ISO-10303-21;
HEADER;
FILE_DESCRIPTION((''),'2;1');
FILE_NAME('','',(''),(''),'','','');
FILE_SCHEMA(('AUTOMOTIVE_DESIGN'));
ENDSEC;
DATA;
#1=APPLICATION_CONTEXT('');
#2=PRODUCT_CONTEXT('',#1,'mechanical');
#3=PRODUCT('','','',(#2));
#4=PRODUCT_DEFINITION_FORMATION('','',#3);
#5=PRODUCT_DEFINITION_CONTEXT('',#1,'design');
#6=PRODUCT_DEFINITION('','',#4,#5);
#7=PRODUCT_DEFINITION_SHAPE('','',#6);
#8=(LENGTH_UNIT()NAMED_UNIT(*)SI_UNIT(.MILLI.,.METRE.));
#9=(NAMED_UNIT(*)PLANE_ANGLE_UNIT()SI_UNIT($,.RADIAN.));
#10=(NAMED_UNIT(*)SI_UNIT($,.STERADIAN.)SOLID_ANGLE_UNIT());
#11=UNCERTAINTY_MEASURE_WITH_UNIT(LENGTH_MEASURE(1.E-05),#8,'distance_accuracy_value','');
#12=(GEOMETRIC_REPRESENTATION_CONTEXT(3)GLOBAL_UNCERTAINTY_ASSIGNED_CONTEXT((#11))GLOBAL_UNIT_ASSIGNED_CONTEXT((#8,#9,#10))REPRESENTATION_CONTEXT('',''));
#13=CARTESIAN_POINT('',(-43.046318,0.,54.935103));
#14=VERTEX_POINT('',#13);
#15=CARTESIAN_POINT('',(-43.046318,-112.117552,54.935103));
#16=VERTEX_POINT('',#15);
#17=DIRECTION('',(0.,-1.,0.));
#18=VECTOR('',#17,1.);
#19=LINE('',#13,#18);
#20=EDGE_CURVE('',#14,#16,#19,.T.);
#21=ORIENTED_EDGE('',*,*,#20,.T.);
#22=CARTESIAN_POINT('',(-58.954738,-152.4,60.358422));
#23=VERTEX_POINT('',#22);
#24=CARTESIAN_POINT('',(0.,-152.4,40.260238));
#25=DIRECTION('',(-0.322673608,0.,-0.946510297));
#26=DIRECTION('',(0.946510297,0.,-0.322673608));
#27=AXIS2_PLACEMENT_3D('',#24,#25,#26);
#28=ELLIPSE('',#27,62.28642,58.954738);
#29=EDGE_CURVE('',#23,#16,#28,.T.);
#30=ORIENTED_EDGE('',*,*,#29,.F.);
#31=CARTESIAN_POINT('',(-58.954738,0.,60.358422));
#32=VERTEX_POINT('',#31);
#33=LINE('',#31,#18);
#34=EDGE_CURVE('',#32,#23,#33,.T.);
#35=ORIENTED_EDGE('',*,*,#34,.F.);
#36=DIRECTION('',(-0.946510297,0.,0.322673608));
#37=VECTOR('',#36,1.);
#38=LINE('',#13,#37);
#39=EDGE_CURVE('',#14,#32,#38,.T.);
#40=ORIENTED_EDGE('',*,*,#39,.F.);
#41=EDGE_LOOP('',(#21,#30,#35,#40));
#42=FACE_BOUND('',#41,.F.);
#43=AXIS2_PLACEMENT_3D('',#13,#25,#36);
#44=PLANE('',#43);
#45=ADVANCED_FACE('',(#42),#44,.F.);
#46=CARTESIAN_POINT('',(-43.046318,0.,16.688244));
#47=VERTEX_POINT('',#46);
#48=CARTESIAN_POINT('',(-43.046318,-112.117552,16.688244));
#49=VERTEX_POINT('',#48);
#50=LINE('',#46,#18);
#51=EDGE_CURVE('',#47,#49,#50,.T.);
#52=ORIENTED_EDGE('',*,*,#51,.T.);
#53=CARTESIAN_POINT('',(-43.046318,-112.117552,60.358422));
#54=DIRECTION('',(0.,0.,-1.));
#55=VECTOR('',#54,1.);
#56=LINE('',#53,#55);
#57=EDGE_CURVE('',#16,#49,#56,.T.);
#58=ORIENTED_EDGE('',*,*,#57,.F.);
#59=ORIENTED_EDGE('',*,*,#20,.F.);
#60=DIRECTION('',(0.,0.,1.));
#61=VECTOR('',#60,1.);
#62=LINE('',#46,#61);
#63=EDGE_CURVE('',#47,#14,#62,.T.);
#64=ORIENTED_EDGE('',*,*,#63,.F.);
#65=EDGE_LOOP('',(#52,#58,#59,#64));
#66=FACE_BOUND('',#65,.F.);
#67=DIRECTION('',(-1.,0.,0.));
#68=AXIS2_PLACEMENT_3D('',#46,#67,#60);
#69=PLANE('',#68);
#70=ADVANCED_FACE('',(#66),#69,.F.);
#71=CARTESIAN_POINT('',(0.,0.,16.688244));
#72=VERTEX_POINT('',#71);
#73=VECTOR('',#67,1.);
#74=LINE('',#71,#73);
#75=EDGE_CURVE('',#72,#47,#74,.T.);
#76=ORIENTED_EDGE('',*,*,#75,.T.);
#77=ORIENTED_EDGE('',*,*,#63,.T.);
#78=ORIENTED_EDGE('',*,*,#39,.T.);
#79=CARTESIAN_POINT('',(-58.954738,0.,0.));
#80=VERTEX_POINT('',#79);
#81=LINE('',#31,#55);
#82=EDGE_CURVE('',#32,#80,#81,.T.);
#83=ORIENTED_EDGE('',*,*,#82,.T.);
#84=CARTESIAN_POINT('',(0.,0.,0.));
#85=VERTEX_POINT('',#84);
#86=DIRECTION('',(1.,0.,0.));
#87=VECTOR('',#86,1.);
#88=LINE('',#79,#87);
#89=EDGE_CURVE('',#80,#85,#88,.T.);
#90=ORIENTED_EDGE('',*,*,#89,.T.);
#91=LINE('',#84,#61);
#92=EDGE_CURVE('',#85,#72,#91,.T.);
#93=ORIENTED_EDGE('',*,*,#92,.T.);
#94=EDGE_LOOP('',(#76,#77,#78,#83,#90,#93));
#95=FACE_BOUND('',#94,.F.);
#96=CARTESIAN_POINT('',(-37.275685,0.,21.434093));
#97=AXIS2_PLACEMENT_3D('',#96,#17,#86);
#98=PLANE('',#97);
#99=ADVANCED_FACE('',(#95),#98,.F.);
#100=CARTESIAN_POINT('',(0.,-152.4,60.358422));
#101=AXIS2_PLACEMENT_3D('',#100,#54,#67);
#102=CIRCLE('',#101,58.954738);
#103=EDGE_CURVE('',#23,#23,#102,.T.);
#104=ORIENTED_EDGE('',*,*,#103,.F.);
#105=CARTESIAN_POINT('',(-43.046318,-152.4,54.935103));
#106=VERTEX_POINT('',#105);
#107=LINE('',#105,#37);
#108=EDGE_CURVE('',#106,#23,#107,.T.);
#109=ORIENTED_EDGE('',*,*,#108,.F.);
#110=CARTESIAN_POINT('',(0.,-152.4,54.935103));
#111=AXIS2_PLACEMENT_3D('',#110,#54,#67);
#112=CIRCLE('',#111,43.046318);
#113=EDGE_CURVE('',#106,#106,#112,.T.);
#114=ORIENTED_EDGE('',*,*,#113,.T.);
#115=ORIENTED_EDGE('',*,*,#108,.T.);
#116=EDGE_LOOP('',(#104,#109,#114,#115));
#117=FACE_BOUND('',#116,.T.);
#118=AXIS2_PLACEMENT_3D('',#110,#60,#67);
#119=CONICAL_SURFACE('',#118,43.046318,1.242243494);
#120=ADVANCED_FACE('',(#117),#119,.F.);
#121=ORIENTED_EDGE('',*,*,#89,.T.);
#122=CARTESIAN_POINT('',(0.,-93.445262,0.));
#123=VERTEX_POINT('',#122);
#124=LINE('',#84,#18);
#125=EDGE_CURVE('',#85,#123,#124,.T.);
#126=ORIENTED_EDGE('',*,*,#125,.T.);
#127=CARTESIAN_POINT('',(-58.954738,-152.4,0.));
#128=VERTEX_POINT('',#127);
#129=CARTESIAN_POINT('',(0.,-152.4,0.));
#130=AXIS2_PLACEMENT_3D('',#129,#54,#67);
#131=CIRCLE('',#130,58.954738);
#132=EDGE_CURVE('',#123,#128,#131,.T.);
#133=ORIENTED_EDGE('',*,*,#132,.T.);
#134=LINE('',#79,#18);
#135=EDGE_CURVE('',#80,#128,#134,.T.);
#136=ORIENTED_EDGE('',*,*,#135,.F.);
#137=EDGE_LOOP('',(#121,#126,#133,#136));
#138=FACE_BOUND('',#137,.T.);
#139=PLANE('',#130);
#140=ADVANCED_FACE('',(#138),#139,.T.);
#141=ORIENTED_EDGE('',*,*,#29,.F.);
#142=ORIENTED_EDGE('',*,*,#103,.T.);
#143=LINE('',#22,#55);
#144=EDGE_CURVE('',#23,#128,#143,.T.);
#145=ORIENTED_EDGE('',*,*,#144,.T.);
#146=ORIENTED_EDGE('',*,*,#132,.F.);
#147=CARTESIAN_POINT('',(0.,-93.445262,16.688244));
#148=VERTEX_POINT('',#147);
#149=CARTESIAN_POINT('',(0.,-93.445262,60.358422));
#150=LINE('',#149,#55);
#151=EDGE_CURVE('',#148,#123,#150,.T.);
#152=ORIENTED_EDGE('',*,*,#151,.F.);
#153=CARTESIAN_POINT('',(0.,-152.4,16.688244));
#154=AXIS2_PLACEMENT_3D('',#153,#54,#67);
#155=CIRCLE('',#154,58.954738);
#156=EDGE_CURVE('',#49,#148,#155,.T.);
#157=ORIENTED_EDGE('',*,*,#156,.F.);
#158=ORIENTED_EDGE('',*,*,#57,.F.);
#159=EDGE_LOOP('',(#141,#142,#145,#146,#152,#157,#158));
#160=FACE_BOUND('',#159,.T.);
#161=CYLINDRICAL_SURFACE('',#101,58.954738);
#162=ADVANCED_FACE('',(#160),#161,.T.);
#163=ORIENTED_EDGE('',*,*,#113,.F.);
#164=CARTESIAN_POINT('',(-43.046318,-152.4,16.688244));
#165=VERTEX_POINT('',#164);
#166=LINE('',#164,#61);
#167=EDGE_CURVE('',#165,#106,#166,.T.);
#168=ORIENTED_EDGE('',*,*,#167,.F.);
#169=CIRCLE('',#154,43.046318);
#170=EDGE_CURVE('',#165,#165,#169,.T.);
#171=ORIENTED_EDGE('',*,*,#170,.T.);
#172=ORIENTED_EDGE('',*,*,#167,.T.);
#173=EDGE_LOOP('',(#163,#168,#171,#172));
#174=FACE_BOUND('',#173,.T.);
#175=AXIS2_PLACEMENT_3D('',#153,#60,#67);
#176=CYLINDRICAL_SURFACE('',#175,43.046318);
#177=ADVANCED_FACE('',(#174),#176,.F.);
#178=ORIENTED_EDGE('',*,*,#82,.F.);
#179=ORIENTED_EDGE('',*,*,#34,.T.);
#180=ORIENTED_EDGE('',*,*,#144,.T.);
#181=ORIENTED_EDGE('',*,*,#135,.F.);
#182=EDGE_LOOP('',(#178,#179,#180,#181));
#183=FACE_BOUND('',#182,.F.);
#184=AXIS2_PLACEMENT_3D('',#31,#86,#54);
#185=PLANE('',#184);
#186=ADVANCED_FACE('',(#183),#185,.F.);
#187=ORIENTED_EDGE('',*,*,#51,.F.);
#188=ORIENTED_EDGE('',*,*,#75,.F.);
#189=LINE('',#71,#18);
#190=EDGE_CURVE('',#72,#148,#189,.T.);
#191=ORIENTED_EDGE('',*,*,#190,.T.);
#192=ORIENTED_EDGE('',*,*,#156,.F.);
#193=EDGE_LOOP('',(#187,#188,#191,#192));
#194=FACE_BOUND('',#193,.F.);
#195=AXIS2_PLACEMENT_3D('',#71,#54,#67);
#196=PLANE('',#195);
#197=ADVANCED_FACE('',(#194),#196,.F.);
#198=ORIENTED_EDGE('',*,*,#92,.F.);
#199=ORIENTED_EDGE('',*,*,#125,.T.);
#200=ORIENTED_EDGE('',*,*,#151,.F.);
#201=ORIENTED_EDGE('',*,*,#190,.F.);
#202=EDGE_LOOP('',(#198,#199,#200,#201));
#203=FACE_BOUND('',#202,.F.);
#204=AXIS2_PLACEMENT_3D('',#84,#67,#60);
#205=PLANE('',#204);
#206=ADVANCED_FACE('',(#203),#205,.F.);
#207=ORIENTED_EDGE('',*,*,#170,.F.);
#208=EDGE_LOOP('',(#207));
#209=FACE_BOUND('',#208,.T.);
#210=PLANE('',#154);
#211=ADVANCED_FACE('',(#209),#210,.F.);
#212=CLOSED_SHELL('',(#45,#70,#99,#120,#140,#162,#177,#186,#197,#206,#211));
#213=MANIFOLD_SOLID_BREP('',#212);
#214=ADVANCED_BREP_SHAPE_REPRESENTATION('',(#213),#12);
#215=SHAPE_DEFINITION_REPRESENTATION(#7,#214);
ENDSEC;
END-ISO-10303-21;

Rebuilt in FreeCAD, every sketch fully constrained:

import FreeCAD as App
import Part
import Sketcher
from FreeCAD import Vector
Q = App.Units.Quantity

doc = App.newDocument("Part")
params = doc.addObject("Spreadsheet::Sheet", "Params")
for row, (alias, value) in enumerate([
    ("pad1_length", "6 in"),
    ("revolution_angle", "360 deg"),
], start=1):
    params.set(f"A{row}", alias)
    params.set(f"B{row}", "=" + value)
    params.setAlias(f"B{row}", alias)

body = doc.addObject("PartDesign::Body", "Body")

# Sketch on XZ plane
sketch1 = doc.addObject("Sketcher::SketchObject", "Sketch")
body.addObject(sketch1)
sketch1.AttachmentSupport = (doc.XZ_Plane, [""])
sketch1.MapMode = "FlatFace"
sketch1.addGeometry(Part.LineSegment(Vector(-59, 0, 0), Vector(0, 0, 0)), False)
sketch1.addGeometry(Part.LineSegment(Vector(0, 0, 0), Vector(0, 17, 0)), False)
sketch1.addGeometry(Part.LineSegment(Vector(0, 17, 0), Vector(-43, 17, 0)), False)
sketch1.addGeometry(Part.LineSegment(Vector(-43, 17, 0), Vector(-43, 55, 0)), False)
sketch1.addGeometry(Part.LineSegment(Vector(-43, 55, 0), Vector(-59, 60, 0)), False)
sketch1.addGeometry(Part.LineSegment(Vector(-59, 60, 0), Vector(-59, 0, 0)), False)
sketch1.addConstraint(Sketcher.Constraint("Coincident", 0, 2, 1, 1))
sketch1.addConstraint(Sketcher.Constraint("Coincident", 1, 2, 2, 1))
sketch1.addConstraint(Sketcher.Constraint("Coincident", 2, 2, 3, 1))
sketch1.addConstraint(Sketcher.Constraint("Coincident", 3, 2, 4, 1))
sketch1.addConstraint(Sketcher.Constraint("Coincident", 4, 2, 5, 1))
sketch1.addConstraint(Sketcher.Constraint("Coincident", 5, 2, 0, 1))
sketch1.addConstraint(Sketcher.Constraint("Horizontal", 0))
sketch1.addConstraint(Sketcher.Constraint("Vertical", 1))
sketch1.addConstraint(Sketcher.Constraint("Horizontal", 2))
sketch1.addConstraint(Sketcher.Constraint("Vertical", 3))
sketch1.addConstraint(Sketcher.Constraint("Vertical", 5))
sketch1.addConstraint(Sketcher.Constraint("Coincident", 0, 2, -1, 1))
sketch1.addConstraint(Sketcher.Constraint("DistanceY", 3, 1, 3, 2, Q("38.246859 mm")))
sketch1.addConstraint(Sketcher.Constraint("DistanceY", 5, 2, 5, 1, Q("60.358422 mm")))
sketch1.addConstraint(Sketcher.Constraint("DistanceX", 0, 1, 0, 2, Q("58.954738 mm")))
sketch1.addConstraint(Sketcher.Constraint("DistanceX", 2, 2, 2, 1, Q("43.046318 mm")))
sketch1.addConstraint(Sketcher.Constraint("DistanceY", 1, 1, 1, 2, Q("16.688244 mm")))
pad1 = doc.addObject("PartDesign::Pad", "Pad")
body.addObject(pad1)
pad1.Profile = sketch1
pad1.setExpression("Length", "Params.pad1_length")

# Sketch on XZ plane
sketch2 = doc.addObject("Sketcher::SketchObject", "Sketch001")
body.addObject(sketch2)
sketch2.AttachmentSupport = (doc.XZ_Plane, [""])
sketch2.MapMode = "FlatFace"
sketch2.AttachmentOffset = App.Placement(Vector(0, 0, 6 * 25.4), App.Rotation())
sketch2.addGeometry(Part.LineSegment(Vector(-59, 60, 0), Vector(-59, 0, 0)), False)
sketch2.addGeometry(Part.LineSegment(Vector(-59, 0, 0), Vector(0, 0, 0)), False)
sketch2.addGeometry(Part.LineSegment(Vector(0, 0, 0), Vector(0, 17, 0)), False)
sketch2.addGeometry(Part.LineSegment(Vector(0, 17, 0), Vector(-43, 17, 0)), False)
sketch2.addGeometry(Part.LineSegment(Vector(-43, 17, 0), Vector(-43, 55, 0)), False)
sketch2.addGeometry(Part.LineSegment(Vector(-43, 55, 0), Vector(-59, 60, 0)), False)
sketch2.addConstraint(Sketcher.Constraint("Coincident", 0, 2, 1, 1))
sketch2.addConstraint(Sketcher.Constraint("Coincident", 1, 2, 2, 1))
sketch2.addConstraint(Sketcher.Constraint("Coincident", 2, 2, 3, 1))
sketch2.addConstraint(Sketcher.Constraint("Coincident", 3, 2, 4, 1))
sketch2.addConstraint(Sketcher.Constraint("Coincident", 4, 2, 5, 1))
sketch2.addConstraint(Sketcher.Constraint("Coincident", 5, 2, 0, 1))
sketch2.addConstraint(Sketcher.Constraint("Vertical", 0))
sketch2.addConstraint(Sketcher.Constraint("Horizontal", 1))
sketch2.addConstraint(Sketcher.Constraint("Vertical", 2))
sketch2.addConstraint(Sketcher.Constraint("Horizontal", 3))
sketch2.addConstraint(Sketcher.Constraint("Vertical", 4))
sketch2.addConstraint(Sketcher.Constraint("Coincident", 1, 2, -1, 1))
sketch2.addConstraint(Sketcher.Constraint("DistanceY", 0, 2, 0, 1, Q("60.358422 mm")))
sketch2.addConstraint(Sketcher.Constraint("DistanceY", 4, 1, 4, 2, Q("38.246859 mm")))
sketch2.addConstraint(Sketcher.Constraint("DistanceX", 1, 1, 1, 2, Q("58.954738 mm")))
sketch2.addConstraint(Sketcher.Constraint("DistanceX", 3, 2, 3, 1, Q("43.046318 mm")))
sketch2.addConstraint(Sketcher.Constraint("DistanceY", 2, 1, 2, 2, Q("16.688244 mm")))
revolution = doc.addObject("PartDesign::Revolution", "Revolution")
body.addObject(revolution)
revolution.Profile = sketch2
revolution.ReferenceAxis = (sketch2, ["V_Axis"])
revolution.setExpression("Angle", "Params.revolution_angle")

doc.recompute()
